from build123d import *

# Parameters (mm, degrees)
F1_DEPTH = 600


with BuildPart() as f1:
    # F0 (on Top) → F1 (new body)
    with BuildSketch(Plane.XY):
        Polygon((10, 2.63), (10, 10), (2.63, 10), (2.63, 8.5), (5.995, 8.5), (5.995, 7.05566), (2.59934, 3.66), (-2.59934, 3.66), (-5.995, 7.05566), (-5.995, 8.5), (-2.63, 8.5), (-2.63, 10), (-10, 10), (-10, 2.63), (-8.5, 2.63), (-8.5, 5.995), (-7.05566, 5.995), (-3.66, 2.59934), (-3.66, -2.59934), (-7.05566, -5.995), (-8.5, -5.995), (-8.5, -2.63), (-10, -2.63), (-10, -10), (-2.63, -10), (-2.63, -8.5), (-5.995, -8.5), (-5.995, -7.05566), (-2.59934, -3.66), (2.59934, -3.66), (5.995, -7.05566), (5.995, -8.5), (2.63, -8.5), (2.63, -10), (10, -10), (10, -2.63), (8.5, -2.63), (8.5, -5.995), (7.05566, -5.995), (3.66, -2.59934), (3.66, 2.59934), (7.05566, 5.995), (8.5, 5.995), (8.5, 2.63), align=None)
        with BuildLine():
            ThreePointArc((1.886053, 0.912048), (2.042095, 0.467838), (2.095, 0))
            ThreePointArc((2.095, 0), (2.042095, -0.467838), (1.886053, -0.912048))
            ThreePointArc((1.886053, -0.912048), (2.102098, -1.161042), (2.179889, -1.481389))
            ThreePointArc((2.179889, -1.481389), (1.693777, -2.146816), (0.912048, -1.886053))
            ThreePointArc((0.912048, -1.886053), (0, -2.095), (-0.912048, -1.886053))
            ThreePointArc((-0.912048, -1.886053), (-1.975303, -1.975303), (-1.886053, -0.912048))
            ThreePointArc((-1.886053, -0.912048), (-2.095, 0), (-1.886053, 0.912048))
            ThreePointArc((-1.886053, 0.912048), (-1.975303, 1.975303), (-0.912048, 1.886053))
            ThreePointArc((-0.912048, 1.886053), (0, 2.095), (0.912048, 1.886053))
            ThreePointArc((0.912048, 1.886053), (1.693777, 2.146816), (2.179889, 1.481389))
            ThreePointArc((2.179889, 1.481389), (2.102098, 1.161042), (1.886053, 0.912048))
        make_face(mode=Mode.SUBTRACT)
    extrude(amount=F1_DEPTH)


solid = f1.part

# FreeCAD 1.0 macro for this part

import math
import FreeCAD as App
import Part
import Sketcher

V = App.Vector


def add_polygon(sketch, points):
    """Adds a closed chain of lines whose ends are joined by coincident constraints."""
    first, n = sketch.GeometryCount, len(points)
    for a, b in zip(points, points[1:] + points[:1]):
        sketch.addGeometry(Part.LineSegment(App.Vector(*a, 0), App.Vector(*b, 0)), False)
    for i in range(n):
        sketch.addConstraint(Sketcher.Constraint("Coincident", first + i, 2, first + (i + 1) % n, 1))

doc = App.newDocument("Part")
params = doc.addObject("Spreadsheet::Sheet", "Params")
for row, (alias, value) in enumerate([
    ("sketch1_width", "1.5 mm"),
    ("sketch1_width2", "7.37 mm"),
    ("pad1_length", "600 mm"),
], start=1):
    params.set(f"A{row}", alias)
    params.set(f"B{row}", "=" + value)
    params.setAlias(f"B{row}", alias)

body = doc.addObject("PartDesign::Body", "Body")

# Sketch on XY plane
sketch1 = doc.addObject("Sketcher::SketchObject", "Sketch")
body.addObject(sketch1)
sketch1.AttachmentSupport = (doc.XY_Plane, [""])
sketch1.MapMode = "FlatFace"
add_polygon(sketch1, [(10, 2.6), (10, 10), (2.6, 10), (2.6, 8.5), (6, 8.5), (6, 7.1), (2.6, 3.7), (-2.6, 3.7), (-6, 7.1), (-6, 8.5), (-2.6, 8.5), (-2.6, 10), (-10, 10), (-10, 2.6), (-8.5, 2.6), (-8.5, 6), (-7.1, 6), (-3.7, 2.6), (-3.7, -2.6), (-7.1, -6), (-8.5, -6), (-8.5, -2.6), (-10, -2.6), (-10, -10), (-2.6, -10), (-2.6, -8.5), (-6, -8.5), (-6, -7.1), (-2.6, -3.7), (2.6, -3.7), (6, -7.1), (6, -8.5), (2.6, -8.5), (2.6, -10), (10, -10), (10, -2.6), (8.5, -2.6), (8.5, -6), (7.1, -6), (3.7, -2.6), (3.7, 2.6), (7.1, 6), (8.5, 6), (8.5, 2.6)])  # lines 0-43
sketch1.addGeometry(Part.ArcOfCircle(Part.Circle(V(1.5, 1.5, 0), V(0, 0, 1), 0.7), math.radians(-55), math.radians(0)), False)  # 44
sketch1.addGeometry(Part.ArcOfCircle(Part.Circle(V(0, 0, 0), V(0, 0, 1), 2.1), math.radians(0), math.radians(26)), False)  # 45
sketch1.addGeometry(Part.ArcOfCircle(Part.Circle(V(0, 0, 0), V(0, 0, 1), 2.1), math.radians(-26), math.radians(0)), False)  # 46
sketch1.addGeometry(Part.ArcOfCircle(Part.Circle(V(1.5, -1.5, 0), V(0, 0, 1), 0.7), math.radians(0), math.radians(55)), False)  # 47
sketch1.addGeometry(Part.ArcOfCircle(Part.Circle(V(1.5, -1.5, 0), V(0, 0, 1), 0.7), math.radians(-145), math.radians(0)), False)  # 48
sketch1.addGeometry(Part.ArcOfCircle(Part.Circle(V(0, 0, 0), V(0, 0, 1), 2.1), math.radians(-116), math.radians(-64)), False)  # 49
sketch1.addGeometry(Part.ArcOfCircle(Part.Circle(V(-1.5, -1.5, 0), V(0, 0, 1), 0.7), math.radians(125), math.radians(325)), False)  # 50
sketch1.addGeometry(Part.ArcOfCircle(Part.Circle(V(0, 0, 0), V(0, 0, 1), 2.1), math.radians(154), math.radians(206)), False)  # 51
sketch1.addGeometry(Part.ArcOfCircle(Part.Circle(V(-1.5, 1.5, 0), V(0, 0, 1), 0.7), math.radians(35), math.radians(235)), False)  # 52
sketch1.addGeometry(Part.ArcOfCircle(Part.Circle(V(0, 0, 0), V(0, 0, 1), 2.1), math.radians(64), math.radians(116)), False)  # 53
sketch1.addGeometry(Part.ArcOfCircle(Part.Circle(V(1.5, 1.5, 0), V(0, 0, 1), 0.7), math.radians(0), math.radians(145)), False)  # 54
sketch1.addConstraint(Sketcher.Constraint("Coincident", 44, 1, 45, 2))
sketch1.addConstraint(Sketcher.Constraint("Coincident", 45, 1, 46, 2))
sketch1.addConstraint(Sketcher.Constraint("Coincident", 46, 1, 47, 2))
sketch1.addConstraint(Sketcher.Constraint("Coincident", 47, 1, 48, 2))
sketch1.addConstraint(Sketcher.Constraint("Coincident", 48, 1, 49, 2))
sketch1.addConstraint(Sketcher.Constraint("Coincident", 49, 1, 50, 2))
sketch1.addConstraint(Sketcher.Constraint("Coincident", 50, 1, 51, 2))
sketch1.addConstraint(Sketcher.Constraint("Coincident", 51, 1, 52, 2))
sketch1.addConstraint(Sketcher.Constraint("Coincident", 52, 1, 53, 2))
sketch1.addConstraint(Sketcher.Constraint("Coincident", 53, 1, 54, 2))
sketch1.addConstraint(Sketcher.Constraint("Coincident", 54, 1, 44, 2))
sketch1.addConstraint(Sketcher.Constraint("Vertical", 0))
sketch1.addConstraint(Sketcher.Constraint("Horizontal", 1))
sketch1.addConstraint(Sketcher.Constraint("Vertical", 2))
sketch1.addConstraint(Sketcher.Constraint("Horizontal", 3))
sketch1.addConstraint(Sketcher.Constraint("Vertical", 4))
sketch1.addConstraint(Sketcher.Constraint("Horizontal", 6))
sketch1.addConstraint(Sketcher.Constraint("Vertical", 8))
sketch1.addConstraint(Sketcher.Constraint("Horizontal", 9))
sketch1.addConstraint(Sketcher.Constraint("Vertical", 10))
sketch1.addConstraint(Sketcher.Constraint("Horizontal", 11))
sketch1.addConstraint(Sketcher.Constraint("Vertical", 12))
sketch1.addConstraint(Sketcher.Constraint("Horizontal", 13))
sketch1.addConstraint(Sketcher.Constraint("Vertical", 14))
sketch1.addConstraint(Sketcher.Constraint("Horizontal", 15))
sketch1.addConstraint(Sketcher.Constraint("Vertical", 17))
sketch1.addConstraint(Sketcher.Constraint("Horizontal", 19))
sketch1.addConstraint(Sketcher.Constraint("Vertical", 20))
sketch1.addConstraint(Sketcher.Constraint("Horizontal", 21))
sketch1.addConstraint(Sketcher.Constraint("Vertical", 22))
sketch1.addConstraint(Sketcher.Constraint("Horizontal", 23))
sketch1.addConstraint(Sketcher.Constraint("Vertical", 24))
sketch1.addConstraint(Sketcher.Constraint("Horizontal", 25))
sketch1.addConstraint(Sketcher.Constraint("Vertical", 26))
sketch1.addConstraint(Sketcher.Constraint("Horizontal", 28))
sketch1.addConstraint(Sketcher.Constraint("Vertical", 30))
sketch1.addConstraint(Sketcher.Constraint("Horizontal", 31))
sketch1.addConstraint(Sketcher.Constraint("Vertical", 32))
sketch1.addConstraint(Sketcher.Constraint("Horizontal", 33))
sketch1.addConstraint(Sketcher.Constraint("Vertical", 34))
sketch1.addConstraint(Sketcher.Constraint("Horizontal", 35))
sketch1.addConstraint(Sketcher.Constraint("Vertical", 36))
sketch1.addConstraint(Sketcher.Constraint("Horizontal", 37))
sketch1.addConstraint(Sketcher.Constraint("Vertical", 39))
sketch1.addConstraint(Sketcher.Constraint("Horizontal", 41))
sketch1.addConstraint(Sketcher.Constraint("Vertical", 42))
sketch1.addConstraint(Sketcher.Constraint("Horizontal", 43))
sketch1.addConstraint(Sketcher.Constraint("Coincident", 49, 3, -1, 1))
sketch1.addConstraint(Sketcher.Constraint("Coincident", 51, 3, -1, 1))
sketch1.addConstraint(Sketcher.Constraint("Coincident", 53, 3, -1, 1))
sketch1.addConstraint(Sketcher.Constraint("Coincident", 46, 3, 45, 3))
sketch1.addConstraint(Sketcher.Constraint("Coincident", 48, 3, 47, 3))
sketch1.addConstraint(Sketcher.Constraint("Coincident", 54, 3, 44, 3))
sketch1.addConstraint(Sketcher.Constraint("Equal", 44, 47))
sketch1.addConstraint(Sketcher.Constraint("Equal", 48, 50))
sketch1.addConstraint(Sketcher.Constraint("Equal", 49, 51))
sketch1.addConstraint(Sketcher.Constraint("Equal", 50, 52))
sketch1.addConstraint(Sketcher.Constraint("Equal", 51, 53))
sketch1.addConstraint(Sketcher.Constraint("Symmetric", 44, 3, 50, 3, -1, 1))
sketch1.addConstraint(Sketcher.Constraint("Symmetric", 47, 3, 52, 3, -1, 1))
sketch1.addConstraint(Sketcher.Constraint("Symmetric", 0, 2, 22, 2, -1, 1))
sketch1.addConstraint(Sketcher.Constraint("Symmetric", 2, 2, 24, 2, -1, 1))
sketch1.addConstraint(Sketcher.Constraint("Symmetric", 4, 2, 26, 2, -1, 1))
sketch1.addConstraint(Sketcher.Constraint("Symmetric", 5, 2, 27, 2, -1, 1))
sketch1.addConstraint(Sketcher.Constraint("Symmetric", 7, 2, 29, 2, -1, 1))
sketch1.addConstraint(Sketcher.Constraint("Symmetric", 9, 2, 31, 2, -1, 1))
sketch1.addConstraint(Sketcher.Constraint("Symmetric", 11, 2, 33, 2, -1, 1))
sketch1.addConstraint(Sketcher.Constraint("Symmetric", 13, 2, 35, 2, -1, 1))
sketch1.addConstraint(Sketcher.Constraint("Symmetric", 15, 2, 37, 2, -1, 1))
sketch1.addConstraint(Sketcher.Constraint("Symmetric", 16, 2, 38, 2, -1, 1))
sketch1.addConstraint(Sketcher.Constraint("Symmetric", 18, 2, 40, 2, -1, 1))
sketch1.addConstraint(Sketcher.Constraint("Symmetric", 20, 2, 42, 2, -1, 1))
sketch1.addConstraint(Sketcher.Constraint("Symmetric", 47, 3, 50, 3, -2))
sketch1.addConstraint(Sketcher.Constraint("Symmetric", 4, 2, 7, 2, -2))
sketch1.addConstraint(Sketcher.Constraint("Symmetric", 2, 2, 9, 2, -2))
sketch1.addConstraint(Sketcher.Constraint("Symmetric", 0, 2, 11, 2, -2))
sketch1.addConstraint(Sketcher.Constraint("Symmetric", 20, 2, 35, 2, -2))
sketch1.addConstraint(Sketcher.Constraint("Symmetric", 18, 2, 37, 2, -2))
sketch1.addConstraint(Sketcher.Constraint("PointOnObject", 45, 1, -1))
sketch1.addConstraint(Sketcher.Constraint("Perpendicular", 5, 7))
sketch1.addConstraint(Sketcher.Constraint("Parallel", 7, 16))
sketch1.addConstraint(Sketcher.Constraint("Perpendicular", 16, 18))
sketch1.addConstraint(Sketcher.Constraint("Perpendicular", 27, 29))
sketch1.addConstraint(Sketcher.Constraint("Perpendicular", 38, 40))
sketch1.addConstraint(Sketcher.Constraint("Horizontal", 17, 2, 38, 2))
sketch1.addConstraint(Sketcher.Constraint("Horizontal", 50, 3, 47, 1))
sketch1.addConstraint(Sketcher.Constraint("Horizontal", 46, 1, 50, 1))
sketch1.addConstraint(Sketcher.Constraint("Horizontal", 44, 1, 51, 1))
sketch1.addConstraint(Sketcher.Constraint("Horizontal", 52, 3, 54, 1))
sketch1.addConstraint(Sketcher.Constraint("Equal", 33, 0))
sketch1.addConstraint(Sketcher.Constraint("Equal", 43, 2))
sketch1.addConstraint(Sketcher.Constraint("Equal", 41, 4))
sketch1.addConstraint(Sketcher.Constraint("Equal", 31, 14))
sketch1.addConstraint(Sketcher.Constraint("Equal", 28, 17))
sketch1.addConstraint(Sketcher.Constraint("Equal", 7, 16))
sketch1.addConstraint(Sketcher.Constraint("DistanceX", 13, 1, 13, 2, 1.5))
sketch1.addConstraint(Sketcher.Constraint("DistanceX", -1, 1, 0, 2, 10.0))
sketch1.addConstraint(Sketcher.Constraint("DistanceX", 1, 2, 1, 1, 7.37))
sketch1.addConstraint(Sketcher.Constraint("Radius", 44, 0.698502))
sketch1.addConstraint(Sketcher.Constraint("DistanceX", 3, 1, 3, 2, 3.365))
sketch1.addConstraint(Sketcher.Constraint("DistanceY", -1, 1, 5, 2, 3.66))
sketch1.addConstraint(Sketcher.Constraint("DistanceX", -1, 1, 45, 1, 2.095))
sketch1.addConstraint(Sketcher.Constraint("Radius", 45, 2.095017))
sketch1.addConstraint(Sketcher.Constraint("DistanceX", 6, 2, 6, 1, 5.19868))
sketch1.addConstraint(Sketcher.Constraint("DistanceY", -1, 1, 44, 3, 1.48139))
sketch1.addConstraint(Sketcher.Constraint("DistanceX", -1, 1, 48, 3, 1.481389))
sketch1.setExpression("Constraints[139]", "Params.sketch1_width")
sketch1.setExpression("Constraints[141]", "Params.sketch1_width2")
pad1 = doc.addObject("PartDesign::Pad", "Pad")
body.addObject(pad1)
pad1.Profile = sketch1
pad1.setExpression("Length", "Params.pad1_length")

doc.recompute()
